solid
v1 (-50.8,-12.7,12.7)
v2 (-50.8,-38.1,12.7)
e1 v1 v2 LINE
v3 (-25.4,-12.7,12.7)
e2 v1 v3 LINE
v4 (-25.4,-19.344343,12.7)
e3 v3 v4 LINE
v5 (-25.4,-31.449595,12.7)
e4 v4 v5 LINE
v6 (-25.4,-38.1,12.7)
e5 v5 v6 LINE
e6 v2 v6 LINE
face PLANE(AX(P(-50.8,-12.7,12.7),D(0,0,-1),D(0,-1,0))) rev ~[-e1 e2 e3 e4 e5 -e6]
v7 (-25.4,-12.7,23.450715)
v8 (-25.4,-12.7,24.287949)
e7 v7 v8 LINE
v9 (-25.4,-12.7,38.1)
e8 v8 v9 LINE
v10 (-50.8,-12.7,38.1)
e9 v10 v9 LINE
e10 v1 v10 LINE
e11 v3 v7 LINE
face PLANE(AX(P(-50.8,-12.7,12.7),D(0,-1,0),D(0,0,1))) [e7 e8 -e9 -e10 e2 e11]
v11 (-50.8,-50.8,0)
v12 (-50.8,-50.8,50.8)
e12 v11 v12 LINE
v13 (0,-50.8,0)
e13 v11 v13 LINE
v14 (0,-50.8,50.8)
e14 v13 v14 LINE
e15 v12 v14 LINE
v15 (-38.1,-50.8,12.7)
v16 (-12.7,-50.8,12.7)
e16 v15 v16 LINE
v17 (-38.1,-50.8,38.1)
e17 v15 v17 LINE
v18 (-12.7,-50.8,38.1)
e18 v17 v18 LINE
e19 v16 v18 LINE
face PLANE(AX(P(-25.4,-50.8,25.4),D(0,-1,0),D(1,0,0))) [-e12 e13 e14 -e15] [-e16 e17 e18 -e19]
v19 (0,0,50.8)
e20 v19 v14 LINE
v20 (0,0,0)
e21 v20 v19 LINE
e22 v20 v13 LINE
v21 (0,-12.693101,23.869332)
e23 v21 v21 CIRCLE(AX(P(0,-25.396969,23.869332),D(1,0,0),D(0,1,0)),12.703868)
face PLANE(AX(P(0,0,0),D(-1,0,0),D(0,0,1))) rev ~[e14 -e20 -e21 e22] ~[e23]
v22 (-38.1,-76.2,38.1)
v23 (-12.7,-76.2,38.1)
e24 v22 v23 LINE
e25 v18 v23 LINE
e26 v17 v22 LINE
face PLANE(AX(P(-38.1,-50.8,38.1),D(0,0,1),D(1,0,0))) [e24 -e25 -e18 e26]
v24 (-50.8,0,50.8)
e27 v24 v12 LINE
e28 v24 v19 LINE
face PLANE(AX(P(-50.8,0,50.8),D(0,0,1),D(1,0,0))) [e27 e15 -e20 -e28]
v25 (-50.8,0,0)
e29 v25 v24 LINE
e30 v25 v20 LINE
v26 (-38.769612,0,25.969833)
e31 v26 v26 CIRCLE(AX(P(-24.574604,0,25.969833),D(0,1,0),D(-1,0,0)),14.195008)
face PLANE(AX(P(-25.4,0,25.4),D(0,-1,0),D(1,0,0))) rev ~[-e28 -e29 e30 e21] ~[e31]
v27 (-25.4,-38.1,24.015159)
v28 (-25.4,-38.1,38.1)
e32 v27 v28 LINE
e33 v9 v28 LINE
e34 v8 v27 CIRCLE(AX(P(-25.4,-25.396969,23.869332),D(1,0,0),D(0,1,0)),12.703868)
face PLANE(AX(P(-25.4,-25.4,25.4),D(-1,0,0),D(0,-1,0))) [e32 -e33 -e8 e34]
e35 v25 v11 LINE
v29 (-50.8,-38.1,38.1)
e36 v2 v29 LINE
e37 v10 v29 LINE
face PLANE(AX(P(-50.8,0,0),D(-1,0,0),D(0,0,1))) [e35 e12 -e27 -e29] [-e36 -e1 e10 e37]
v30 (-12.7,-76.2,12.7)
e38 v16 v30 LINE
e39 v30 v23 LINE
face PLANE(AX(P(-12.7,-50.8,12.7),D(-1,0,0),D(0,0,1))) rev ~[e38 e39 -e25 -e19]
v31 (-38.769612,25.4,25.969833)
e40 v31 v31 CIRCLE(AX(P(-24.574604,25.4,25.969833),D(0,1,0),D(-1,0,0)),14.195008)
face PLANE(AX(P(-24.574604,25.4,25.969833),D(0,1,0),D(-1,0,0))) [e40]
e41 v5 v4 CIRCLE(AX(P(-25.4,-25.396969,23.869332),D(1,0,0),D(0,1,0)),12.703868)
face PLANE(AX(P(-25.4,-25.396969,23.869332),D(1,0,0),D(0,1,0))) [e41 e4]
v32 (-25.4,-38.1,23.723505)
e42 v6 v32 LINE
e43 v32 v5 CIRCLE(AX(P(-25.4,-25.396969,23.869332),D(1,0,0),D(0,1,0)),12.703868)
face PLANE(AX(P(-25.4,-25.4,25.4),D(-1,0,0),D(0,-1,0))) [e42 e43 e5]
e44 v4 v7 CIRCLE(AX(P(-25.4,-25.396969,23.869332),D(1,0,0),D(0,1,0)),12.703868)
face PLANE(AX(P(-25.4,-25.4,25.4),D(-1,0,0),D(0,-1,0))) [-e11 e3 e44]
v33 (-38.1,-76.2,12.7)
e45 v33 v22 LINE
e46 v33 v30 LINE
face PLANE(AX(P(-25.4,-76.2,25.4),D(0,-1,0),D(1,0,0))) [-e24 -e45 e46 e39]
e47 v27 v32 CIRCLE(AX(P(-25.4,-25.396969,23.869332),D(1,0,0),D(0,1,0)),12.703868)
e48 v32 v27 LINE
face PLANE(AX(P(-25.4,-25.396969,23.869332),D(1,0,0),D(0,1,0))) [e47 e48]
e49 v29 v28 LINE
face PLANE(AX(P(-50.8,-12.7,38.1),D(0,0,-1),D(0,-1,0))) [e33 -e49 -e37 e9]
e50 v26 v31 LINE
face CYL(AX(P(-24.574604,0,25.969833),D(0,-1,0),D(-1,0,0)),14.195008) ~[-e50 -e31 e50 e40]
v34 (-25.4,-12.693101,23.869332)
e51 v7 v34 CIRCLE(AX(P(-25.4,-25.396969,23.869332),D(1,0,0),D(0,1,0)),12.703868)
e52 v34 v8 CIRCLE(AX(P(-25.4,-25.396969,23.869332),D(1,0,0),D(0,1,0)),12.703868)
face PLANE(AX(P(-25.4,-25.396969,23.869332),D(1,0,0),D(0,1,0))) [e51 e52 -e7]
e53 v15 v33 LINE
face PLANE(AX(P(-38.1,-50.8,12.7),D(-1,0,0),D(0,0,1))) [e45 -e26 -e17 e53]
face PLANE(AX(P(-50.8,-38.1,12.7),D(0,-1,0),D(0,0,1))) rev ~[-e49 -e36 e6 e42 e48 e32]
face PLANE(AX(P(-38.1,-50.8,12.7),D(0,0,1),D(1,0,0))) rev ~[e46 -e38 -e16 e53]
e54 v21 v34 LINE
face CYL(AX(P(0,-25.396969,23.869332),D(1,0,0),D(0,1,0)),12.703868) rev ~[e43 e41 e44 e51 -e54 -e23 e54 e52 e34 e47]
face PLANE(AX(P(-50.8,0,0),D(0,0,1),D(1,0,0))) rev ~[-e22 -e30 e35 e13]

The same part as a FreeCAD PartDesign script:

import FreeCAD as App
import Part
import Sketcher
Q = App.Units.Quantity


def add_polygon(sketch, points):
    """Adds a closed chain of lines whose ends are joined by coincident constraints."""
    first, n = sketch.GeometryCount, len(points)
    for a, b in zip(points, points[1:] + points[:1]):
        sketch.addGeometry(Part.LineSegment(App.Vector(*a, 0), App.Vector(*b, 0)), False)
    for i in range(n):
        sketch.addConstraint(Sketcher.Constraint("Coincident", first + i, 2, first + (i + 1) % n, 1))

doc = App.newDocument("Part")
body = doc.addObject("PartDesign::Body", "Body")

sketch1 = doc.addObject("Sketcher::SketchObject", "Sketch")
body.addObject(sketch1)
sketch1.AttachmentSupport = (doc.XZ_Plane, [""])
sketch1.MapMode = "FlatFace"
add_polygon(sketch1, [(-51, 51), (-51, 0), (0, 0), (0, 51)])
sketch1.addConstraint([
    Sketcher.Constraint("Vertical", 0),
    Sketcher.Constraint("Horizontal", 1),
    Sketcher.Constraint("Vertical", 2),
    Sketcher.Constraint("Horizontal", 3),
    Sketcher.Constraint("Coincident", 1, 2, -1, 1),
    Sketcher.Constraint("Equal", 3, 0),
    Sketcher.Constraint("DistanceX", 1, 1, 1, 2, Q("2 in")),
])
pad1 = doc.addObject("PartDesign::Pad", "Pad")
body.addObject(pad1)
pad1.Profile = sketch1
pad1.Length = Q("2 in")

sketch2 = doc.addObject("Sketcher::SketchObject", "Sketch001")
body.addObject(sketch2)
sketch2.AttachmentSupport = (doc.XZ_Plane, [""])
sketch2.MapMode = "FlatFace"
sketch2.AttachmentOffset = App.Placement(App.Vector(0, 0, 2 * 25.4), App.Rotation())
add_polygon(sketch2, [(-38, 38), (-38, 13), (-13, 13), (-13, 38)])
sketch2.addConstraint([
    Sketcher.Constraint("Vertical", 0),
    Sketcher.Constraint("Horizontal", 1),
    Sketcher.Constraint("Vertical", 2),
    Sketcher.Constraint("Horizontal", 3),
    Sketcher.Constraint("Equal", 3, 0),
    Sketcher.Constraint("DistanceX", 1, 1, 1, 2, Q("1 in")),
    Sketcher.Constraint("DistanceX", 0, 2, -1, 1, Q("1.5 in")),
    Sketcher.Constraint("DistanceY", -1, 1, 0, 2, Q("0.5 in")),
])
pad2 = doc.addObject("PartDesign::Pad", "Pad001")
body.addObject(pad2)
pad2.Profile = sketch2
pad2.Length = Q("1 in")

sketch3 = doc.addObject("Sketcher::SketchObject", "Sketch002")
body.addObject(sketch3)
sketch3.AttachmentSupport = (doc.YZ_Plane, [""])
sketch3.MapMode = "FlatFace"
sketch3.AttachmentOffset = App.Placement(App.Vector(0, 0, -2 * 25.4), App.Rotation())
add_polygon(sketch3, [(-13, 38), (-13, 13), (-38, 13), (-38, 38)])
sketch3.addConstraint([
    Sketcher.Constraint("Vertical", 0),
    Sketcher.Constraint("Horizontal", 1),
    Sketcher.Constraint("Vertical", 2),
    Sketcher.Constraint("Horizontal", 3),
    Sketcher.Constraint("Equal", 3, 0),
    Sketcher.Constraint("DistanceX", 1, 2, 1, 1, Q("1 in")),
    Sketcher.Constraint("DistanceX", 0, 2, -1, 1, Q("0.5 in")),
    Sketcher.Constraint("DistanceY", -1, 1, 0, 2, Q("0.5 in")),
])
pocket1 = doc.addObject("PartDesign::Pocket", "Pocket")
body.addObject(pocket1)
pocket1.Profile = sketch3
pocket1.Length = Q("1 in")
pocket1.Reversed = True

sketch4 = doc.addObject("Sketcher::SketchObject", "Sketch003")
body.addObject(sketch4)
sketch4.AttachmentSupport = (doc.YZ_Plane, [""])
sketch4.MapMode = "FlatFace"
sketch4.addGeometry(Part.Circle(App.Vector(-25, 24, 0), App.Vector(0, 0, 1), 13), False)
sketch4.addConstraint([
    Sketcher.Constraint("Diameter", 0, Q("25.407736 mm")),
    Sketcher.Constraint("DistanceX", 0, 3, -1, 1, Q("25.396969 mm")),
    Sketcher.Constraint("DistanceY", -1, 1, 0, 3, Q("23.869332 mm")),
])
pocket2 = doc.addObject("PartDesign::Pocket", "Pocket001")
body.addObject(pocket2)
pocket2.Profile = sketch4
pocket2.Length = Q("1 in")

sketch5 = doc.addObject("Sketcher::SketchObject", "Sketch004")
body.addObject(sketch5)
sketch5.AttachmentSupport = (doc.XZ_Plane, [""])
sketch5.MapMode = "FlatFace"
sketch5.addGeometry(Part.Circle(App.Vector(-25, 26, 0), App.Vector(0, 0, 1), 14), False)
sketch5.addConstraint([
    Sketcher.Constraint("Diameter", 0, Q("28.390016 mm")),
    Sketcher.Constraint("DistanceX", 0, 3, -1, 1, Q("24.574604 mm")),
    Sketcher.Constraint("DistanceY", -1, 1, 0, 3, Q("25.969833 mm")),
])
pad3 = doc.addObject("PartDesign::Pad", "Pad002")
body.addObject(pad3)
pad3.Profile = sketch5
pad3.Length = Q("1 in")
pad3.Reversed = True

doc.recompute()
